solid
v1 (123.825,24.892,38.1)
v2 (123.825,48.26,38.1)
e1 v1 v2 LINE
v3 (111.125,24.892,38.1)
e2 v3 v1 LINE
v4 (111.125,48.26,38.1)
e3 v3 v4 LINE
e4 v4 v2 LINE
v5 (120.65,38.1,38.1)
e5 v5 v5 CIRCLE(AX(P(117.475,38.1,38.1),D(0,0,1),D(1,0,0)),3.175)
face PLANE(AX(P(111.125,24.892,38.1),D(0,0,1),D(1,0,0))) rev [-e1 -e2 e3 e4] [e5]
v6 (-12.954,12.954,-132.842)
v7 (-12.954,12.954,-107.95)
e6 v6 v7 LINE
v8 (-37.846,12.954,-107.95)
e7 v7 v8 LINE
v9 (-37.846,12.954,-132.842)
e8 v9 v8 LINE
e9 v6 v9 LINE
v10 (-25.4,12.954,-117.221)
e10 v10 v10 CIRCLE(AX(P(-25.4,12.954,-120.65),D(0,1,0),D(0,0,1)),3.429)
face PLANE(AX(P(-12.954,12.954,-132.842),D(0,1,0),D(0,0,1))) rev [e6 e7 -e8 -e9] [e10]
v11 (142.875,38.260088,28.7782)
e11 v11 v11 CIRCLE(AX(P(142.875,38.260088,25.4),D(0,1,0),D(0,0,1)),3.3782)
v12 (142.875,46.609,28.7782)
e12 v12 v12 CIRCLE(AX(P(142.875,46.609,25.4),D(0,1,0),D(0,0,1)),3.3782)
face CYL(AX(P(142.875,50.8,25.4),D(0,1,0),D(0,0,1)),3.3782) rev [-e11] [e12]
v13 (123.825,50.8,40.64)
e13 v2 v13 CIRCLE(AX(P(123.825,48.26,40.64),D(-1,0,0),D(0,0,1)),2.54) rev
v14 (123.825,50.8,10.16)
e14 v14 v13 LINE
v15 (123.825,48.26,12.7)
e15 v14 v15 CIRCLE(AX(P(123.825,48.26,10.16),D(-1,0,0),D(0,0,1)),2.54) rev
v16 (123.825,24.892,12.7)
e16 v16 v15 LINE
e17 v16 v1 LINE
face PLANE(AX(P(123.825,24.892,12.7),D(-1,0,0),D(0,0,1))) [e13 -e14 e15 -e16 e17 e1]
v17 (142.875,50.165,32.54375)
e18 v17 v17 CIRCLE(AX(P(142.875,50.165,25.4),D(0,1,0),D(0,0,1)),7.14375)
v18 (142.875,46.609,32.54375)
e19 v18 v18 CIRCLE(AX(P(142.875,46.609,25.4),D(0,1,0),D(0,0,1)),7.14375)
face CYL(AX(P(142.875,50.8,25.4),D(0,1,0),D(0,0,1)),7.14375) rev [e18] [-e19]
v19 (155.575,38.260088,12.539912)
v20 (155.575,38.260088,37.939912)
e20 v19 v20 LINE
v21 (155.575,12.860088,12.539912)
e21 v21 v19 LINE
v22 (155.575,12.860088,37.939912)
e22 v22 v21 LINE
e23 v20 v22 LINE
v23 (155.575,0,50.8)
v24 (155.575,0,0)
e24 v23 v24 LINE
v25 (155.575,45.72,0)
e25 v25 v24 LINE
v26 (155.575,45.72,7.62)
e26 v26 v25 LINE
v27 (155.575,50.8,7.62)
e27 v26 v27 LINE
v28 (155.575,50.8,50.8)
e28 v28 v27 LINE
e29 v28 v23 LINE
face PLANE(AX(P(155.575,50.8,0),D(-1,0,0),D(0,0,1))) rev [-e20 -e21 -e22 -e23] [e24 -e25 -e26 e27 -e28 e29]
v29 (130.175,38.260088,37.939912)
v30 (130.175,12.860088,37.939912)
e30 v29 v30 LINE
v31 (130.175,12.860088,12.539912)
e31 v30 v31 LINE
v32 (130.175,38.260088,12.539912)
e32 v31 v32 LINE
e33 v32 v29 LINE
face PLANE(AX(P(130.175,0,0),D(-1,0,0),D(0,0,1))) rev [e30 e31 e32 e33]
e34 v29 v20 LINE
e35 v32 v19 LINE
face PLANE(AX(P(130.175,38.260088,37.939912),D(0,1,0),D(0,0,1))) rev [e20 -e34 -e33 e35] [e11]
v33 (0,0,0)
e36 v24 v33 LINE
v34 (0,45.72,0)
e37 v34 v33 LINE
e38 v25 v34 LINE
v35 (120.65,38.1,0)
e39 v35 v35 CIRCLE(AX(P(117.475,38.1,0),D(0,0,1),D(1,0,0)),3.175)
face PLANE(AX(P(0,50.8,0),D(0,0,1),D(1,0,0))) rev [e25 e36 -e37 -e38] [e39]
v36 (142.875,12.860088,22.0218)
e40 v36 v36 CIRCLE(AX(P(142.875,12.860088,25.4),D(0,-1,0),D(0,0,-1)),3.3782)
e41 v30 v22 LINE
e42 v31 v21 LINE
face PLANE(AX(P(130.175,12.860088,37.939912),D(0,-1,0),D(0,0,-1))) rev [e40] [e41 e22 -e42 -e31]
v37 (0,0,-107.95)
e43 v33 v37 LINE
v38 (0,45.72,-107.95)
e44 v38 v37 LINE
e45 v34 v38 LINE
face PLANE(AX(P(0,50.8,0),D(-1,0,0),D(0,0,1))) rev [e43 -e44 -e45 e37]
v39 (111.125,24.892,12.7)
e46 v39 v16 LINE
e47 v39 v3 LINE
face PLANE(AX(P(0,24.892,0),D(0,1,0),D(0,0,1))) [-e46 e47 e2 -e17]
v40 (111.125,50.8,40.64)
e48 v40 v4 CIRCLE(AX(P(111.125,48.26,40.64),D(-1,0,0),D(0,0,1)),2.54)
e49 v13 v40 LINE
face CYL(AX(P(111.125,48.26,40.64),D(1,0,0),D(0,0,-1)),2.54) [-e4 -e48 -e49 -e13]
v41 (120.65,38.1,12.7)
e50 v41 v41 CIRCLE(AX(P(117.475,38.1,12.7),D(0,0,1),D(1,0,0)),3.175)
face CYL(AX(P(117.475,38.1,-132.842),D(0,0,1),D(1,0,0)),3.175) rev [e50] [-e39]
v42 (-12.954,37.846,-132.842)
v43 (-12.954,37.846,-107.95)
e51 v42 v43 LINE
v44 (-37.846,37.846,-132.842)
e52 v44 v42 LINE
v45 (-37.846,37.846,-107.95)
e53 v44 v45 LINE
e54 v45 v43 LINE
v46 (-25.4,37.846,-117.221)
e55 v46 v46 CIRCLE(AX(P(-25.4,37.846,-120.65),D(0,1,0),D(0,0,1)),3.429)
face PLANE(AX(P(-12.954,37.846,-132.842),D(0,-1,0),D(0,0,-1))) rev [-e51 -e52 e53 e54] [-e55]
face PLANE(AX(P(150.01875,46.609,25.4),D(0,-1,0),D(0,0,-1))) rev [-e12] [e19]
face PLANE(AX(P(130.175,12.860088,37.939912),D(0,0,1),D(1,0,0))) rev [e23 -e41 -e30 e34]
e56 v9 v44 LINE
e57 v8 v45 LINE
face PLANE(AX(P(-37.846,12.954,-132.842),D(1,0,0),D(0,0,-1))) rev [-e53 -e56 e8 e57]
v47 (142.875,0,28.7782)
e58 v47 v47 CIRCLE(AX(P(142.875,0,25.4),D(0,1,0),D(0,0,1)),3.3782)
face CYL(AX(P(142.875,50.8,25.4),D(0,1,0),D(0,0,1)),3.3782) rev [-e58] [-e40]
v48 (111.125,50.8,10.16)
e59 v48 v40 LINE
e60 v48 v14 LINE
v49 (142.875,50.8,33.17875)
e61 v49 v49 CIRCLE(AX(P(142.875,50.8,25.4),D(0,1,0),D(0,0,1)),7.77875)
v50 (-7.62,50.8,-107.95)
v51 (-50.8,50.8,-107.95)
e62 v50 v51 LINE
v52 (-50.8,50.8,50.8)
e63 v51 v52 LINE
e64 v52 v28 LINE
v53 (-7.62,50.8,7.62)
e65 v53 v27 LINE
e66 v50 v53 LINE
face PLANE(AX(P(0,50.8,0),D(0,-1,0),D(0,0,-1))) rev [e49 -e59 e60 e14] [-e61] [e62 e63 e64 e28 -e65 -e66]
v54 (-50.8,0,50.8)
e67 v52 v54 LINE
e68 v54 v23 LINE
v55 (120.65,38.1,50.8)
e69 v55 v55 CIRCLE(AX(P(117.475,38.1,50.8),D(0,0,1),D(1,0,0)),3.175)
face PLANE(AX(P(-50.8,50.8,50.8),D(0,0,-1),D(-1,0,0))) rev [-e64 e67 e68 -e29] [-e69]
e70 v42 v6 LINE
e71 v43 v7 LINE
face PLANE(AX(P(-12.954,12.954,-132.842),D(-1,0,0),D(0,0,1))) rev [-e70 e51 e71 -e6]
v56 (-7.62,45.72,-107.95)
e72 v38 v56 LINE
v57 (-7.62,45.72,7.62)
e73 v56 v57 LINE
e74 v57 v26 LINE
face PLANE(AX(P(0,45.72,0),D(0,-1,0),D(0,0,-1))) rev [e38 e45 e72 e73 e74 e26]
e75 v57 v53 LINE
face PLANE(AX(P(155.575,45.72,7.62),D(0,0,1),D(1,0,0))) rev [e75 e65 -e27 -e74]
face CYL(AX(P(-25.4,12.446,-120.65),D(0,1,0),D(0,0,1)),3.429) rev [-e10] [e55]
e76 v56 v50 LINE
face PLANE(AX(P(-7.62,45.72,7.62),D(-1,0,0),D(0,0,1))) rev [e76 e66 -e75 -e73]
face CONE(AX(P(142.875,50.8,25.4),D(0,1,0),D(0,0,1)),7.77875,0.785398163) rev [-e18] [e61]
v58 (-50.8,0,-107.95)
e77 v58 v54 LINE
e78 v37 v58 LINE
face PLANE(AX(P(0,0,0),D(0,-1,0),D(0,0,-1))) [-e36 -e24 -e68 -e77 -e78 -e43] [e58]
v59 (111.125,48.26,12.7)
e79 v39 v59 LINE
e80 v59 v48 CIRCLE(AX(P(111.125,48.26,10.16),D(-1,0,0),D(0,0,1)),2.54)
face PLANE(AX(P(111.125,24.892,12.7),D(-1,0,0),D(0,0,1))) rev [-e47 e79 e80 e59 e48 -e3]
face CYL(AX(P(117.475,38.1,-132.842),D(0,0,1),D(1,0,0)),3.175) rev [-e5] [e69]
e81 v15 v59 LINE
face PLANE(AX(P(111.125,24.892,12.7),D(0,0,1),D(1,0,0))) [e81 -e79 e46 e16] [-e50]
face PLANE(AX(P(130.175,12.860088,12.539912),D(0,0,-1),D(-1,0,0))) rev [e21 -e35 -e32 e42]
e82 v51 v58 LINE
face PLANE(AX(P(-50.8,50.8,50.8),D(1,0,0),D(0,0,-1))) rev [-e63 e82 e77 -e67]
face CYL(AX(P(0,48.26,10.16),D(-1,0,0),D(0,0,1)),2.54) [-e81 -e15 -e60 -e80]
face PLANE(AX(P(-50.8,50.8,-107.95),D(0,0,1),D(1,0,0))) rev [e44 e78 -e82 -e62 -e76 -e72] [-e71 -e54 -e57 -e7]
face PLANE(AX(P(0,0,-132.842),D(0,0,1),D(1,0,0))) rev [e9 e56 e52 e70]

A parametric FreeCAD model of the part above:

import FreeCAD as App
import Part
import Sketcher
from FreeCAD import Vector
Q = App.Units.Quantity


def edges_at(feature, points):
    """Names of the edges that pass closest to the given points."""
    edges = feature.Shape.Edges
    near = lambda p: min(range(len(edges)), key=lambda i: edges[i].distToShape(Part.Vertex(*p))[0])
    return sorted({f"Edge{near(p) + 1}" for p in points})


def add_polygon(sketch, points):
    """Adds a closed chain of lines whose ends are joined by coincident constraints."""
    first, n = sketch.GeometryCount, len(points)
    for a, b in zip(points, points[1:] + points[:1]):
        sketch.addGeometry(Part.LineSegment(App.Vector(*a, 0), App.Vector(*b, 0)), False)
    for i in range(n):
        sketch.addConstraint(Sketcher.Constraint("Coincident", first + i, 2, first + (i + 1) % n, 1))

doc = App.newDocument("Part")
body = doc.addObject("PartDesign::Body", "Body")

# Sketch on XZ plane
sketch1 = doc.addObject("Sketcher::SketchObject", "Sketch")
body.addObject(sketch1)
sketch1.AttachmentSupport = (doc.XZ_Plane, [""])
sketch1.MapMode = "FlatFace"
add_polygon(sketch1, [(0, -108), (-51, -108), (-51, 51), (156, 51), (156, 0), (0, 0)])  # lines 0-5
sketch1.addConstraint(Sketcher.Constraint("Horizontal", 0))
sketch1.addConstraint(Sketcher.Constraint("Vertical", 1))
sketch1.addConstraint(Sketcher.Constraint("Horizontal", 2))
sketch1.addConstraint(Sketcher.Constraint("Vertical", 3))
sketch1.addConstraint(Sketcher.Constraint("Horizontal", 4))
sketch1.addConstraint(Sketcher.Constraint("Vertical", 5))
sketch1.addConstraint(Sketcher.Constraint("Coincident", 4, 2, -1, 1))
sketch1.addConstraint(Sketcher.Constraint("Equal", 0, 3))
sketch1.addConstraint(Sketcher.Constraint("DistanceX", 0, 2, 0, 1, Q("2 in")))
sketch1.addConstraint(Sketcher.Constraint("DistanceY", 1, 1, 1, 2, Q("6.25 in")))
sketch1.addConstraint(Sketcher.Constraint("DistanceX", 2, 1, 2, 2, Q("8.125 in")))
pad1 = doc.addObject("PartDesign::Pad", "Pad")
body.addObject(pad1)
pad1.Profile = sketch1
pad1.Length = Q("2 in")
pad1.Reversed = True

# Sketch on YZ plane
sketch2 = doc.addObject("Sketcher::SketchObject", "Sketch001")
body.addObject(sketch2)
sketch2.AttachmentSupport = (doc.YZ_Plane, [""])
sketch2.MapMode = "FlatFace"
sketch2.AttachmentOffset = App.Placement(Vector(0, 0, 6.125 * 25.4), App.Rotation())
add_polygon(sketch2, [(38, 38), (13, 38), (13, 13), (38, 13)])  # lines 0-3
sketch2.addConstraint(Sketcher.Constraint("Horizontal", 0))
sketch2.addConstraint(Sketcher.Constraint("Vertical", 1))
sketch2.addConstraint(Sketcher.Constraint("Horizontal", 2))
sketch2.addConstraint(Sketcher.Constraint("Vertical", 3))
sketch2.addConstraint(Sketcher.Constraint("Equal", 2, 1))
sketch2.addConstraint(Sketcher.Constraint("DistanceX", 0, 2, 0, 1, Q("1 in")))
sketch2.addConstraint(Sketcher.Constraint("DistanceY", -1, 1, 1, 2, 12.539912))
sketch2.addConstraint(Sketcher.Constraint("DistanceX", -1, 1, 2, 2, 38.260088))
pocket1 = doc.addObject("PartDesign::Pocket", "Pocket")
body.addObject(pocket1)
pocket1.Profile = sketch2
pocket1.Length = Q("1 in")

# Sketch on YZ plane
sketch3 = doc.addObject("Sketcher::SketchObject", "Sketch002")
body.addObject(sketch3)
sketch3.AttachmentSupport = (doc.YZ_Plane, [""])
sketch3.MapMode = "FlatFace"
sketch3.AttachmentOffset = App.Placement(Vector(0, 0, 5.625 * 25.4), App.Rotation())
add_polygon(sketch3, [(0, 25.4), (50.8, 25.4), (50.8, 33.2), (50.2, 32.5), (46.6, 32.5), (46.6, 28.8), (0, 28.8)])  # lines 0-6
sketch3.addGeometry(Part.LineSegment(Vector(50.8, 25.4, 0), Vector(0, 25.4, 0)), True)  # axis
sketch3.addConstraint(Sketcher.Constraint("Horizontal", 0))
sketch3.addConstraint(Sketcher.Constraint("Vertical", 1))
sketch3.addConstraint(Sketcher.Constraint("Horizontal", 3))
sketch3.addConstraint(Sketcher.Constraint("Vertical", 4))
sketch3.addConstraint(Sketcher.Constraint("Horizontal", 5))
sketch3.addConstraint(Sketcher.Constraint("Vertical", 6))
sketch3.addConstraint(Sketcher.Constraint("Horizontal", 7))
sketch3.addConstraint(Sketcher.Constraint("Coincident", 7, 1, 0, 2))
sketch3.addConstraint(Sketcher.Constraint("PointOnObject", 5, 2, -2))
sketch3.addConstraint(Sketcher.Constraint("PointOnObject", 7, 2, -2))
sketch3.addConstraint(Sketcher.Constraint("DistanceX", 0, 1, 0, 2, Q("2 in")))
sketch3.addConstraint(Sketcher.Constraint("DistanceY", -1, 1, 0, 2, Q("1 in")))
sketch3.addConstraint(Sketcher.Constraint("Angle", 2, Q("-135 deg")))
sketch3.addConstraint(Sketcher.Constraint("DistanceX", 3, 2, 3, 1, Q("0.14 in")))
sketch3.addConstraint(Sketcher.Constraint("DistanceX", 5, 2, 5, 1, Q("1.835 in")))
sketch3.addConstraint(Sketcher.Constraint("DistanceY", 6, 2, 6, 1, Q("0.133 in")))
sketch3.addConstraint(Sketcher.Constraint("DistanceY", -1, 1, 2, 2, Q("1.28125 in")))
groove = doc.addObject("PartDesign::Groove", "Groove")
body.addObject(groove)
groove.Profile = sketch3
groove.ReferenceAxis = (sketch3, ["Axis0"])
groove.Angle = 360

# Sketch on XY plane
sketch4 = doc.addObject("Sketcher::SketchObject", "Sketch003")
body.addObject(sketch4)
sketch4.AttachmentSupport = (doc.XY_Plane, [""])
sketch4.MapMode = "FlatFace"
sketch4.AttachmentOffset = App.Placement(Vector(0, 0, -4.25 * 25.4), App.Rotation())
add_polygon(sketch4, [(-13, 38), (-13, 13), (-38, 13), (-38, 38)])  # lines 0-3
sketch4.addConstraint(Sketcher.Constraint("Vertical", 0))
sketch4.addConstraint(Sketcher.Constraint("Horizontal", 1))
sketch4.addConstraint(Sketcher.Constraint("Vertical", 2))
sketch4.addConstraint(Sketcher.Constraint("Horizontal", 3))
sketch4.addConstraint(Sketcher.Constraint("Equal", 3, 0))
sketch4.addConstraint(Sketcher.Constraint("DistanceX", 1, 2, 1, 1, Q("0.98 in")))
sketch4.addConstraint(Sketcher.Constraint("DistanceX", 0, 2, -1, 1, Q("0.51 in")))
sketch4.addConstraint(Sketcher.Constraint("DistanceY", -1, 1, 0, 2, Q("0.51 in")))
pad2 = doc.addObject("PartDesign::Pad", "Pad001")
body.addObject(pad2)
pad2.Profile = sketch4
pad2.Length = Q("0.98 in")
pad2.Reversed = True

# Sketch on XZ plane
sketch5 = doc.addObject("Sketcher::SketchObject", "Sketch004")
body.addObject(sketch5)
sketch5.AttachmentSupport = (doc.XZ_Plane, [""])
sketch5.MapMode = "FlatFace"
sketch5.AttachmentOffset = App.Placement(Vector(0, 0, -1.49 * 25.4), App.Rotation())
sketch5.addGeometry(Part.Circle(Vector(-25.4, -120.7, 0), Vector(0, 0, 1), 3.4), False)
sketch5.addConstraint(Sketcher.Constraint("Diameter", 0, Q("0.27 in")))
sketch5.addConstraint(Sketcher.Constraint("DistanceX", 0, 3, -1, 1, Q("1 in")))
sketch5.addConstraint(Sketcher.Constraint("DistanceY", 0, 3, -1, 1, Q("4.75 in")))
pocket2 = doc.addObject("PartDesign::Pocket", "Pocket001")
body.addObject(pocket2)
pocket2.Profile = sketch5
pocket2.Length = Q("1 in")
pocket2.Reversed = True

# Sketch on XZ plane
sketch6 = doc.addObject("Sketcher::SketchObject", "Sketch005")
body.addObject(sketch6)
sketch6.AttachmentSupport = (doc.XZ_Plane, [""])
sketch6.MapMode = "FlatFace"
sketch6.AttachmentOffset = App.Placement(Vector(0, 0, -2 * 25.4), App.Rotation())
add_polygon(sketch6, [(111, 13), (111, 38), (124, 38), (124, 13)])  # lines 0-3
sketch6.addConstraint(Sketcher.Constraint("Vertical", 0))
sketch6.addConstraint(Sketcher.Constraint("Horizontal", 1))
sketch6.addConstraint(Sketcher.Constraint("Vertical", 2))
sketch6.addConstraint(Sketcher.Constraint("Horizontal", 3))
sketch6.addConstraint(Sketcher.Constraint("DistanceY", 0, 1, 0, 2, Q("1 in")))
sketch6.addConstraint(Sketcher.Constraint("DistanceX", 1, 1, 1, 2, Q("0.5 in")))
sketch6.addConstraint(Sketcher.Constraint("DistanceY", -1, 1, 0, 2, Q("1.5 in")))
sketch6.addConstraint(Sketcher.Constraint("DistanceX", -1, 1, 0, 2, Q("4.375 in")))
pocket3 = doc.addObject("PartDesign::Pocket", "Pocket002")
body.addObject(pocket3)
pocket3.Profile = sketch6
pocket3.Length = Q("1.02 in")
pocket3.Reversed = True
doc.recompute()

fillet = doc.addObject("PartDesign::Fillet", "Fillet")
body.addObject(fillet)
fillet.Base = (pocket3, edges_at(pocket3, [(117.475, 50.8, 12.7), (117.475, 50.8, 38.1)]))
fillet.Radius = Q("0.1 in")

# Sketch on XZ plane
sketch7 = doc.addObject("Sketcher::SketchObject", "Sketch006")
body.addObject(sketch7)
sketch7.AttachmentSupport = (doc.XZ_Plane, [""])
sketch7.MapMode = "FlatFace"
sketch7.AttachmentOffset = App.Placement(Vector(0, 0, -2 * 25.4), App.Rotation())
add_polygon(sketch7, [(0, 0), (0, -108), (-8, -108), (-8, 8), (156, 8), (156, 0)])  # lines 0-5
sketch7.addConstraint(Sketcher.Constraint("Vertical", 0))
sketch7.addConstraint(Sketcher.Constraint("Horizontal", 1))
sketch7.addConstraint(Sketcher.Constraint("Vertical", 2))
sketch7.addConstraint(Sketcher.Constraint("Horizontal", 3))
sketch7.addConstraint(Sketcher.Constraint("Vertical", 4))
sketch7.addConstraint(Sketcher.Constraint("Horizontal", 5))
sketch7.addConstraint(Sketcher.Constraint("Coincident", 5, 2, -1, 1))
sketch7.addConstraint(Sketcher.Constraint("Equal", 1, 4))
sketch7.addConstraint(Sketcher.Constraint("DistanceX", 1, 2, 1, 1, Q("0.3 in")))
sketch7.addConstraint(Sketcher.Constraint("DistanceY", 0, 2, 0, 1, Q("4.25 in")))
sketch7.addConstraint(Sketcher.Constraint("DistanceX", 3, 1, 3, 2, Q("6.425 in")))
pocket4 = doc.addObject("PartDesign::Pocket", "Pocket003")
body.addObject(pocket4)
pocket4.Profile = sketch7
pocket4.Length = Q("0.2 in")
pocket4.Reversed = True

# Sketch on XY plane
sketch8 = doc.addObject("Sketcher::SketchObject", "Sketch007")
body.addObject(sketch8)
sketch8.AttachmentSupport = (doc.XY_Plane, [""])
sketch8.MapMode = "FlatFace"
sketch8.AttachmentOffset = App.Placement(Vector(0, 0, 2 * 25.4), App.Rotation())
sketch8.addGeometry(Part.Circle(Vector(117.5, 38.1, 0), Vector(0, 0, 1), 3.2), False)
sketch8.addConstraint(Sketcher.Constraint("Diameter", 0, Q("0.25 in")))
sketch8.addConstraint(Sketcher.Constraint("DistanceY", -1, 1, 0, 3, Q("1.5 in")))
sketch8.addConstraint(Sketcher.Constraint("DistanceX", -1, 1, 0, 3, Q("4.625 in")))
pocket5 = doc.addObject("PartDesign::Pocket", "Pocket004")
body.addObject(pocket5)
pocket5.Profile = sketch8
pocket5.Type = "ThroughAll"

doc.recompute()
